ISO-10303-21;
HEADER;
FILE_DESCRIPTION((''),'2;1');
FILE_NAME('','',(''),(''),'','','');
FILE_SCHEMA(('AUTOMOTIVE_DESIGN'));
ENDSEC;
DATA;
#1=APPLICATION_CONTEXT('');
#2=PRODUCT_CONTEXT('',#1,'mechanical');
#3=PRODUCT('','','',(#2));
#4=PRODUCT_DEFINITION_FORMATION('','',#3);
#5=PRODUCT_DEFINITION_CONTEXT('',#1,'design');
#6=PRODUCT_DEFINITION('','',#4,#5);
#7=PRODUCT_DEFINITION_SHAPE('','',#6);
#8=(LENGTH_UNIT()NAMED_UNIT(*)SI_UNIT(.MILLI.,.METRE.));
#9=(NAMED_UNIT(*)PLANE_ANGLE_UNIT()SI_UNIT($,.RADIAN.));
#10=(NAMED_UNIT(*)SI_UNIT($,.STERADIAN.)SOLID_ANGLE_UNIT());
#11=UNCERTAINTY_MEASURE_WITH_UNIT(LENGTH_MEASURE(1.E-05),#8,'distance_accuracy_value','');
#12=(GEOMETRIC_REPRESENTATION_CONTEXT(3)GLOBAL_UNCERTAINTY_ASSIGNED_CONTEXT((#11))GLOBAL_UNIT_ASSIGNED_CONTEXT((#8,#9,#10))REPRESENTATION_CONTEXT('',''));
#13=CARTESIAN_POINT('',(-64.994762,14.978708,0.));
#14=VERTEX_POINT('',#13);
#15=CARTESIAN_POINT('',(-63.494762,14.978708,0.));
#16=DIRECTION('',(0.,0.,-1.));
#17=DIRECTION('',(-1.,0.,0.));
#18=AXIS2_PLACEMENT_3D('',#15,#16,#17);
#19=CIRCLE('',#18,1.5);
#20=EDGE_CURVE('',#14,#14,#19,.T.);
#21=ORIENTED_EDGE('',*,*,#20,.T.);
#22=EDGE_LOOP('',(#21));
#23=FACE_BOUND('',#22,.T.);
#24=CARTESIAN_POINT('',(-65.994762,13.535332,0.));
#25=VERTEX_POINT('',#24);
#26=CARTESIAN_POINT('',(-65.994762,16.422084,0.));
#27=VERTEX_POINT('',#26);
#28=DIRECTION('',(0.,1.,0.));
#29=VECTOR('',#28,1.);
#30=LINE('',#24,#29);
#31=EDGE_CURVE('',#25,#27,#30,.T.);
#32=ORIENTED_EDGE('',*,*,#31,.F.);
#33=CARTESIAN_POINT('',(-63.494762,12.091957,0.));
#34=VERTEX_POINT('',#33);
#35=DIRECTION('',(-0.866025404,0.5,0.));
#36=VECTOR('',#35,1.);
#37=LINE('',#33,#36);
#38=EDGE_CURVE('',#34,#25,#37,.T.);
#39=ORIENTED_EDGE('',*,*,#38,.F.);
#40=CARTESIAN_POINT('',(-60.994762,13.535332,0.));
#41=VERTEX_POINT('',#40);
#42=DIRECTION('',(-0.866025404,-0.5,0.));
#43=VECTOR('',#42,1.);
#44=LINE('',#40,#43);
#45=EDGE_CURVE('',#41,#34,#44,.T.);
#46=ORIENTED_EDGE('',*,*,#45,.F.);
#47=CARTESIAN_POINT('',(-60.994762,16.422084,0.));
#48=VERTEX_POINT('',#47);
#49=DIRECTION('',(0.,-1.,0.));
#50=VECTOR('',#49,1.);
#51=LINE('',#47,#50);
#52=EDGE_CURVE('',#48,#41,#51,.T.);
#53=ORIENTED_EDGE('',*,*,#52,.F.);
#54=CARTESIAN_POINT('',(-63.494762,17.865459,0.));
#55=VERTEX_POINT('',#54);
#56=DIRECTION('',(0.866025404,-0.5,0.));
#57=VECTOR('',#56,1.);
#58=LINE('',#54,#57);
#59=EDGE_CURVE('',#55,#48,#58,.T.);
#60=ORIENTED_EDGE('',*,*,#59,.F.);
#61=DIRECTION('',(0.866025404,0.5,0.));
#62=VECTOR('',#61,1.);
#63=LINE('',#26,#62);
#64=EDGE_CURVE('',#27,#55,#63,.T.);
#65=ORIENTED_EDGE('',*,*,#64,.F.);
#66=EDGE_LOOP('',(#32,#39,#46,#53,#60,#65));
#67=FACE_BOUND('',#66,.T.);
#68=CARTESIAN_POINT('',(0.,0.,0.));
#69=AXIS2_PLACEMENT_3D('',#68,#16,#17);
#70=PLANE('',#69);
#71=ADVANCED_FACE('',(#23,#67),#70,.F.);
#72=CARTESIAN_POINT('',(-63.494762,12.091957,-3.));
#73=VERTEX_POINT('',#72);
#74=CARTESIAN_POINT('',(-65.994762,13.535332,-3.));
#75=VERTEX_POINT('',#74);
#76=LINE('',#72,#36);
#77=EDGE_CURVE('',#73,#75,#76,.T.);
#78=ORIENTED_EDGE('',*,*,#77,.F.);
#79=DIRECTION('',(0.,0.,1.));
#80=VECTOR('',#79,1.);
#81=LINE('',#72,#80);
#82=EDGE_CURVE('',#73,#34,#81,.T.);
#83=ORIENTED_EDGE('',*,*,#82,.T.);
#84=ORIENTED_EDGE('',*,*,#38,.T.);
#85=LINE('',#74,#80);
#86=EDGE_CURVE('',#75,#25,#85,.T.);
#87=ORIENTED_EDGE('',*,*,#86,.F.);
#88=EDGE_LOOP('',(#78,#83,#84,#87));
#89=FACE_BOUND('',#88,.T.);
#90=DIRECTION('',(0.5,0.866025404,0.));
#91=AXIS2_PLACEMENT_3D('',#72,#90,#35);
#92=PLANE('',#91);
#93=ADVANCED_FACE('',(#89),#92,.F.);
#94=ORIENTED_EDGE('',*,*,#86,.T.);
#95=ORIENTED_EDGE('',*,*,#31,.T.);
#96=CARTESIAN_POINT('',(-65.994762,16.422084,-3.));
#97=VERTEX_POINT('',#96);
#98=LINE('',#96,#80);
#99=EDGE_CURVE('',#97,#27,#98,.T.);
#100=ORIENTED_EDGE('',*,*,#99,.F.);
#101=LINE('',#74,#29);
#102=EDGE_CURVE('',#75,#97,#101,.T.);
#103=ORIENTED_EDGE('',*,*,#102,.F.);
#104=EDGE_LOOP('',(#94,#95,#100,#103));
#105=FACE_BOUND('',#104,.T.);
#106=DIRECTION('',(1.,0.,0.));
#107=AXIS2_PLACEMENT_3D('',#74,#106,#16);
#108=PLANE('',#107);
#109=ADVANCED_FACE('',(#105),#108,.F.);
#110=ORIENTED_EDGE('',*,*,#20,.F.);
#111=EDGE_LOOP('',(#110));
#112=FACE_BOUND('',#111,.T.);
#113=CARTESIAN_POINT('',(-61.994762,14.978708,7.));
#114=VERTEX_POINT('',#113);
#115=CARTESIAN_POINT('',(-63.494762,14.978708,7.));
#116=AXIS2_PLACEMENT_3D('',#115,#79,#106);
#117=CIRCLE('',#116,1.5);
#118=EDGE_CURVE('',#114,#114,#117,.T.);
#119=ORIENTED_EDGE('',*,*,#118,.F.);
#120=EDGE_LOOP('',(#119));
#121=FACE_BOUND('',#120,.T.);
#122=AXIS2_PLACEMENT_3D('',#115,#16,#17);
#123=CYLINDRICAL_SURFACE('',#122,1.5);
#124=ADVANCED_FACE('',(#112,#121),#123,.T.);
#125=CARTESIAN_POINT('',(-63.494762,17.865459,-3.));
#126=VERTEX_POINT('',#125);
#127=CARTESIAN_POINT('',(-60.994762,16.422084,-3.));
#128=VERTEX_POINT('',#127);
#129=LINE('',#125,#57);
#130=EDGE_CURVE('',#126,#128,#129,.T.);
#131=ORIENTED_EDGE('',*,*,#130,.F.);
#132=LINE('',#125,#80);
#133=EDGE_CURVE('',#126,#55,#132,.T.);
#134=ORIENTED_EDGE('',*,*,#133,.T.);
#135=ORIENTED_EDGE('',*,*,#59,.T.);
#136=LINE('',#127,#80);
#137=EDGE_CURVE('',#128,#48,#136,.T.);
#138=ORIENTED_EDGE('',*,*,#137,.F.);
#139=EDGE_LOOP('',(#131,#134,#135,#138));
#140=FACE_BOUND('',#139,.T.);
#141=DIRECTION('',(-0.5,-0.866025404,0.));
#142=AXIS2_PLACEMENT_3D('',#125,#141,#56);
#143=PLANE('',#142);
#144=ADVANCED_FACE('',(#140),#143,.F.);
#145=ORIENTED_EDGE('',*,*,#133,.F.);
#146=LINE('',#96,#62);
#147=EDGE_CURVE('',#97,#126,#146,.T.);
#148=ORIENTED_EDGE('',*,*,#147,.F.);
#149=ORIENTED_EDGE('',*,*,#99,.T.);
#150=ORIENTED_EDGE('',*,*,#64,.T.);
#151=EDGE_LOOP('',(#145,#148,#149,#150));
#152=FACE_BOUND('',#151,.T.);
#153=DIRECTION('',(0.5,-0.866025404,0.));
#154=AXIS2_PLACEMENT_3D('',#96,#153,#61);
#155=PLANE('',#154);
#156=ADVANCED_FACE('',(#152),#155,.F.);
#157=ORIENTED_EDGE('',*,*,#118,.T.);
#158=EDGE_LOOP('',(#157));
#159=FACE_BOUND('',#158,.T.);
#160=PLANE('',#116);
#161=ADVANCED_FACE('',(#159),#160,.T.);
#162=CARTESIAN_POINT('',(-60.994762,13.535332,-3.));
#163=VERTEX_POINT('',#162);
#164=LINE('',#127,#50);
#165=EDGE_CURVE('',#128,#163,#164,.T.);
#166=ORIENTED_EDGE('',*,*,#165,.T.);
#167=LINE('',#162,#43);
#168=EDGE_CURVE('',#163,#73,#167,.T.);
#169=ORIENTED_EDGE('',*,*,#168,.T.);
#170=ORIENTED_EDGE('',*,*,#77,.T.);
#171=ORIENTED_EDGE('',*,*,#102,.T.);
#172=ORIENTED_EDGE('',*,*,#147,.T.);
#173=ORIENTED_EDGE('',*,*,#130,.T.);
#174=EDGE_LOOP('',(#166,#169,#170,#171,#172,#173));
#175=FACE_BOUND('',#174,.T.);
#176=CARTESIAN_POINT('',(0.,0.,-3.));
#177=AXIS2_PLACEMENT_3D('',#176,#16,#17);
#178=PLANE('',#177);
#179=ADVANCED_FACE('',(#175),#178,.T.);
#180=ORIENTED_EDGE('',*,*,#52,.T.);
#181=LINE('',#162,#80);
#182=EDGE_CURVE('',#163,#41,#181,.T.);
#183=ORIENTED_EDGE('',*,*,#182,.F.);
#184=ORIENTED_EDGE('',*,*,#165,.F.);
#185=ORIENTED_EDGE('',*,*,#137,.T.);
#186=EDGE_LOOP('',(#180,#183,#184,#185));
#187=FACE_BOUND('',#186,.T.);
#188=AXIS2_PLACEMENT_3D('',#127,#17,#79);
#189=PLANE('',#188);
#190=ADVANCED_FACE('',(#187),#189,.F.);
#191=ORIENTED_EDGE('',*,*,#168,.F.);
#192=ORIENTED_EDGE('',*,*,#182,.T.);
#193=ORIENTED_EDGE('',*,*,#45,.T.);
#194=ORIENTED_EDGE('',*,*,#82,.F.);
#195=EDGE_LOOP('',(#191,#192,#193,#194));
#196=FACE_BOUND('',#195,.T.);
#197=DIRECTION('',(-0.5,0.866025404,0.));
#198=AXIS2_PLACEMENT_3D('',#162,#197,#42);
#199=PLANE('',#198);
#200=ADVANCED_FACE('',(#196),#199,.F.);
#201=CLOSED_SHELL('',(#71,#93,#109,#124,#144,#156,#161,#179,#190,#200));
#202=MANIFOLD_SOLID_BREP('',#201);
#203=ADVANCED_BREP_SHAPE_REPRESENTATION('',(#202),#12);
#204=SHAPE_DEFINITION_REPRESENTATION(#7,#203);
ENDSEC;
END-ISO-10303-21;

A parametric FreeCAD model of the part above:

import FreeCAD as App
import Part
import Sketcher
from FreeCAD import Vector
Q = App.Units.Quantity

doc = App.newDocument("Part")
body = doc.addObject("PartDesign::Body", "Body")

sketch1 = doc.addObject("Sketcher::SketchObject", "Sketch")
body.addObject(sketch1)
sketch1.AttachmentSupport = (doc.XY_Plane, [""])
sketch1.MapMode = "FlatFace"
sketch1.addGeometry(Part.Circle(Vector(-63.494762, 14.978708, 0), Vector(0, 0, 1), 1.5), False)
sketch1.addConstraint([
    Sketcher.Constraint("Diameter", 0, Q("3 mm")),
    Sketcher.Constraint("DistanceX", 0, 3, -1, 1, Q("63.494762 mm")),
    Sketcher.Constraint("DistanceY", -1, 1, 0, 3, Q("14.978708 mm")),
])
pad1 = doc.addObject("PartDesign::Pad", "Pad")
body.addObject(pad1)
pad1.Profile = sketch1
pad1.Length = 7

sketch2 = doc.addObject("Sketcher::SketchObject", "Sketch001")
body.addObject(sketch2)
sketch2.AttachmentSupport = (doc.XY_Plane, [""])
sketch2.MapMode = "FlatFace"
sketch2.addGeometry([
    Part.LineSegment(Vector(-63.494762, 12.091957, 0), Vector(-65.994762, 13.535332, 0)),
    Part.LineSegment(Vector(-65.994762, 13.535332, 0), Vector(-65.994762, 16.422084, 0)),
    Part.LineSegment(Vector(-65.994762, 16.422084, 0), Vector(-63.494762, 17.865459, 0)),
    Part.LineSegment(Vector(-63.494762, 17.865459, 0), Vector(-60.994762, 16.422084, 0)),
    Part.LineSegment(Vector(-60.994762, 16.422084, 0), Vector(-60.994762, 13.535332, 0)),
    Part.LineSegment(Vector(-60.994762, 13.535332, 0), Vector(-63.494762, 12.091957, 0)),
], False)
sketch2.addConstraint([
    Sketcher.Constraint("Coincident", 0, 2, 1, 1),
    Sketcher.Constraint("Coincident", 1, 2, 2, 1),
    Sketcher.Constraint("Coincident", 2, 2, 3, 1),
    Sketcher.Constraint("Coincident", 3, 2, 4, 1),
    Sketcher.Constraint("Coincident", 4, 2, 5, 1),
    Sketcher.Constraint("Coincident", 5, 2, 0, 1),
    Sketcher.Constraint("Vertical", 1),
    Sketcher.Constraint("Vertical", 4),
    Sketcher.Constraint("Parallel", 0, 3),
    Sketcher.Constraint("Parallel", 2, 5),
    Sketcher.Constraint("Horizontal", 1, 2, 3, 2),
    Sketcher.Constraint("Horizontal", 0, 2, 4, 2),
    Sketcher.Constraint("Vertical", 2, 2, 5, 2),
    Sketcher.Constraint("Angle", 0, Q("150 deg")),
    Sketcher.Constraint("DistanceX", 1, 2, 3, 2, Q("5 mm")),
    Sketcher.Constraint("DistanceY", 1, 1, 1, 2, Q("2.886751 mm")),
    Sketcher.Constraint("DistanceX", 0, 2, -1, 1, Q("65.994762 mm")),
    Sketcher.Constraint("DistanceY", -1, 1, 2, 2, Q("17.865459 mm")),
])
pad2 = doc.addObject("PartDesign::Pad", "Pad001")
body.addObject(pad2)
pad2.Profile = sketch2
pad2.Length = 3
pad2.Reversed = True

doc.recompute()
